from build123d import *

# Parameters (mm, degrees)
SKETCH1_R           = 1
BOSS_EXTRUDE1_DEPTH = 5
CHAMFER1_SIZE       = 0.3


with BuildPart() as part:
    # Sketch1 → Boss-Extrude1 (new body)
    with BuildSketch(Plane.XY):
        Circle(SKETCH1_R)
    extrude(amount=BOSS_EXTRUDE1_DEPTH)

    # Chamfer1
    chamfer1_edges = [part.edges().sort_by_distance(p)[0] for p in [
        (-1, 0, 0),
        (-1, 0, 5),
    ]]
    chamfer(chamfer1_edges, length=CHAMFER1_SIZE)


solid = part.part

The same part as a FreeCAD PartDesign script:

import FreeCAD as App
import Part
import Sketcher
Q = App.Units.Quantity


def edges_at(feature, points):
    """Names of the edges that pass closest to the given points."""
    edges = feature.Shape.Edges
    near = lambda p: min(range(len(edges)), key=lambda i: edges[i].distToShape(Part.Vertex(*p))[0])
    return sorted({f"Edge{near(p) + 1}" for p in points})

doc = App.newDocument("Part")
body = doc.addObject("PartDesign::Body", "Body")

# Sketch on XY plane
sketch1 = doc.addObject("Sketcher::SketchObject", "Sketch")
body.addObject(sketch1)
sketch1.AttachmentSupport = (doc.XY_Plane, [""])
sketch1.MapMode = "FlatFace"
sketch1.addGeometry(Part.Circle(App.Vector(0, 0, 0), App.Vector(0, 0, 1), 1), False)
sketch1.addConstraint(Sketcher.Constraint("Coincident", 0, 3, -1, 1))
sketch1.addConstraint(Sketcher.Constraint("Diameter", 0, Q("2 mm")))
pad1 = doc.addObject("PartDesign::Pad", "Pad")
body.addObject(pad1)
pad1.Profile = sketch1
pad1.Length = 5
doc.recompute()

chamfer = doc.addObject("PartDesign::Chamfer", "Chamfer")
body.addObject(chamfer)
chamfer.Base = (pad1, edges_at(pad1, [(-1, 0, 0), (-1, 0, 5)]))
chamfer.Size = 0.3

doc.recompute()
